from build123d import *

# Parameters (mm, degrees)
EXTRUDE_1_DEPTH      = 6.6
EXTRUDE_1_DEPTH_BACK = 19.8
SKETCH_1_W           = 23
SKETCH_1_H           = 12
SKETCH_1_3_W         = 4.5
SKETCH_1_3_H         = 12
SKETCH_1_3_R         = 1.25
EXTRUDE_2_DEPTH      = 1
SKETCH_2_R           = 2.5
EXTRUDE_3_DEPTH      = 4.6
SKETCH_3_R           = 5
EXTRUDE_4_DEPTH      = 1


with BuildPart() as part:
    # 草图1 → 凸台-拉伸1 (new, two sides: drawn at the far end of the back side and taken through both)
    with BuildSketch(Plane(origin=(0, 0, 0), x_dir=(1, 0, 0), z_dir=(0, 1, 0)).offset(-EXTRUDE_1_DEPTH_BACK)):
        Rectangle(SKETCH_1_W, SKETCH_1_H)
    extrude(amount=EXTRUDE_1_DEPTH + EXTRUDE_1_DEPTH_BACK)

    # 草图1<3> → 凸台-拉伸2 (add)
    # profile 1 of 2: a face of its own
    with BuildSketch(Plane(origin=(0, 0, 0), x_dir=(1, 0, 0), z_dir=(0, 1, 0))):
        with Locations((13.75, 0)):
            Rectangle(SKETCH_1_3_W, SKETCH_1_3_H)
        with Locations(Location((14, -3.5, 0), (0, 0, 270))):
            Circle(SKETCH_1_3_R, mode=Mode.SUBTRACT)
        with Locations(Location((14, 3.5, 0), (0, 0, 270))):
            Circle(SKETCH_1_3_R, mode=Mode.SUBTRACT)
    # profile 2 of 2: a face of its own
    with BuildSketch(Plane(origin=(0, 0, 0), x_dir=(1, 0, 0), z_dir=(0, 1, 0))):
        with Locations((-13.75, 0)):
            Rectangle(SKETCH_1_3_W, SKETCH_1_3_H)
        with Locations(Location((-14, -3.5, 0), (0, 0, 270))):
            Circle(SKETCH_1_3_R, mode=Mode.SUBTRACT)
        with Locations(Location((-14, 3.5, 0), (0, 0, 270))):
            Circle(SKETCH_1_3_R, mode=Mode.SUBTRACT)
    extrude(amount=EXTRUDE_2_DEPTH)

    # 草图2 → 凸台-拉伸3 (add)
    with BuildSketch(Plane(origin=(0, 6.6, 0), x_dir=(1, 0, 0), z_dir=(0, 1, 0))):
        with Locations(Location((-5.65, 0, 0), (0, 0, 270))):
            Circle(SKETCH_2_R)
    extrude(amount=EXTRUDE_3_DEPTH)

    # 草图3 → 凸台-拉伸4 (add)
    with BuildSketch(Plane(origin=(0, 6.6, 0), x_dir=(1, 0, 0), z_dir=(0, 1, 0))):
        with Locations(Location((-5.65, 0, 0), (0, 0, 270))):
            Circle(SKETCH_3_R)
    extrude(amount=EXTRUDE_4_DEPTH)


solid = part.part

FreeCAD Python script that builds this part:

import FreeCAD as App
import Part
import Sketcher
from FreeCAD import Vector
Q = App.Units.Quantity


def add_polygon(sketch, points):
    """Adds a closed chain of lines whose ends are joined by coincident constraints."""
    first, n = sketch.GeometryCount, len(points)
    for a, b in zip(points, points[1:] + points[:1]):
        sketch.addGeometry(Part.LineSegment(App.Vector(*a, 0), App.Vector(*b, 0)), False)
    for i in range(n):
        sketch.addConstraint(Sketcher.Constraint("Coincident", first + i, 2, first + (i + 1) % n, 1))

doc = App.newDocument("Part")
params = doc.addObject("Spreadsheet::Sheet", "Params")
for row, (alias, value) in enumerate([
    ("sketch1_width", "23 mm"),
    ("sketch1_height", "12 mm"),
    ("pad1_length", "6.6 mm"),
    ("pad1_length2", "19.8 mm"),
    ("sketch2_diameter", "2.5 mm"),
    ("sketch2_height", "12 mm"),
    ("sketch2_width", "4.5 mm"),
    ("pad2_length", "1 mm"),
    ("sketch3_diameter", "5 mm"),
    ("pad3_length", "4.6 mm"),
    ("sketch4_diameter", "10 mm"),
    ("pad4_length", "1 mm"),
], start=1):
    params.set(f"A{row}", alias)
    params.set(f"B{row}", "=" + value)
    params.setAlias(f"B{row}", alias)

body = doc.addObject("PartDesign::Body", "Body")

# Sketch on XZ plane
sketch1 = doc.addObject("Sketcher::SketchObject", "Sketch")
body.addObject(sketch1)
sketch1.AttachmentSupport = (doc.XZ_Plane, [""])
sketch1.MapMode = "FlatFace"
add_polygon(sketch1, [(-12, -6), (-12, 6), (12, 6), (12, -6)])  # lines 0-3
sketch1.addConstraint([
    Sketcher.Constraint("Vertical", 0),
    Sketcher.Constraint("Horizontal", 1),
    Sketcher.Constraint("Vertical", 2),
    Sketcher.Constraint("Horizontal", 3),
    Sketcher.Constraint("Symmetric", 0, 2, 2, 2, -1, 1),
    Sketcher.Constraint("DistanceX", 1, 1, 1, 2, Q("23 mm")),
    Sketcher.Constraint("DistanceY", 0, 1, 0, 2, Q("12 mm")),
])
sketch1.setExpression("Constraints[9]", "Params.sketch1_width")
sketch1.setExpression("Constraints[10]", "Params.sketch1_height")
pad1 = doc.addObject("PartDesign::Pad", "Pad")
body.addObject(pad1)
pad1.Profile = sketch1
pad1.Type = "TwoLengths"
pad1.setExpression("Length", "Params.pad1_length")
pad1.setExpression("Length2", "Params.pad1_length2")
pad1.Reversed = True

# Sketch on XZ plane
sketch2 = doc.addObject("Sketcher::SketchObject", "Sketch001")
body.addObject(sketch2)
sketch2.AttachmentSupport = (doc.XZ_Plane, [""])
sketch2.MapMode = "FlatFace"
add_polygon(sketch2, [(11.5, -6), (11.5, 6), (16, 6), (16, -6)])  # lines 0-3
sketch2.addGeometry(Part.Circle(Vector(14, 3.5, 0), Vector(0, 0, 1), 1.2), False)  # 4
sketch2.addGeometry(Part.Circle(Vector(14, -3.5, 0), Vector(0, 0, 1), 1.2), False)  # 5
add_polygon(sketch2, [(-16, -6), (-16, 6), (-11.5, 6), (-11.5, -6)])  # lines 6-9
sketch2.addGeometry(Part.Circle(Vector(-14, 3.5, 0), Vector(0, 0, 1), 1.2), False)  # 10
sketch2.addGeometry(Part.Circle(Vector(-14, -3.5, 0), Vector(0, 0, 1), 1.2), False)  # 11
sketch2.addConstraint([
    Sketcher.Constraint("Vertical", 0),
    Sketcher.Constraint("Horizontal", 1),
    Sketcher.Constraint("Vertical", 2),
    Sketcher.Constraint("Horizontal", 3),
    Sketcher.Constraint("Vertical", 6),
    Sketcher.Constraint("Horizontal", 7),
    Sketcher.Constraint("Vertical", 8),
    Sketcher.Constraint("Horizontal", 9),
    Sketcher.Constraint("Equal", 4, 5),
    Sketcher.Constraint("Equal", 5, 10),
    Sketcher.Constraint("Equal", 10, 11),
    Sketcher.Constraint("Symmetric", 5, 3, 10, 3, -1, 1),
    Sketcher.Constraint("Symmetric", 4, 3, 11, 3, -1, 1),
    Sketcher.Constraint("Symmetric", 2, 2, 6, 2, -1, 1),
    Sketcher.Constraint("Symmetric", 0, 2, 8, 2, -1, 1),
    Sketcher.Constraint("Symmetric", 4, 3, 10, 3, -2),
    Sketcher.Constraint("Horizontal", 1, 2, 6, 2),
    Sketcher.Constraint("Diameter", 4, Q("2.5 mm")),
    Sketcher.Constraint("DistanceY", 0, 1, 0, 2, Q("12 mm")),
    Sketcher.Constraint("DistanceX", 1, 1, 1, 2, Q("4.5 mm")),
    Sketcher.Constraint("DistanceX", -1, 1, 4, 3, Q("14 mm")),
    Sketcher.Constraint("DistanceX", -1, 1, 1, 2, Q("16 mm")),
    Sketcher.Constraint("DistanceY", 5, 3, 4, 3, Q("7 mm")),
])
sketch2.setExpression("Constraints[25]", "Params.sketch2_diameter")
sketch2.setExpression("Constraints[26]", "Params.sketch2_height")
sketch2.setExpression("Constraints[27]", "Params.sketch2_width")
pad2 = doc.addObject("PartDesign::Pad", "Pad001")
body.addObject(pad2)
pad2.Profile = sketch2
pad2.setExpression("Length", "Params.pad2_length")
pad2.Reversed = True

# Sketch on XZ plane
sketch3 = doc.addObject("Sketcher::SketchObject", "Sketch002")
body.addObject(sketch3)
sketch3.AttachmentSupport = (doc.XZ_Plane, [""])
sketch3.MapMode = "FlatFace"
sketch3.AttachmentOffset = App.Placement(Vector(0, 0, -6.6), App.Rotation())
sketch3.addGeometry(Part.Circle(Vector(-5.7, 0, 0), Vector(0, 0, 1), 2.5), False)
sketch3.addConstraint([
    Sketcher.Constraint("PointOnObject", 0, 3, -1),
    Sketcher.Constraint("Diameter", 0, Q("5 mm")),
    Sketcher.Constraint("DistanceX", 0, 3, -1, 1, Q("5.65 mm")),
])
sketch3.setExpression("Constraints[1]", "Params.sketch3_diameter")
pad3 = doc.addObject("PartDesign::Pad", "Pad002")
body.addObject(pad3)
pad3.Profile = sketch3
pad3.setExpression("Length", "Params.pad3_length")
pad3.Reversed = True

# Sketch on XZ plane
sketch4 = doc.addObject("Sketcher::SketchObject", "Sketch003")
body.addObject(sketch4)
sketch4.AttachmentSupport = (doc.XZ_Plane, [""])
sketch4.MapMode = "FlatFace"
sketch4.AttachmentOffset = App.Placement(Vector(0, 0, -6.6), App.Rotation())
sketch4.addGeometry(Part.Circle(Vector(-6, 0, 0), Vector(0, 0, 1), 5), False)
sketch4.addConstraint([
    Sketcher.Constraint("PointOnObject", 0, 3, -1),
    Sketcher.Constraint("Diameter", 0, Q("10 mm")),
    Sketcher.Constraint("DistanceX", 0, 3, -1, 1, Q("5.65 mm")),
])
sketch4.setExpression("Constraints[1]", "Params.sketch4_diameter")
pad4 = doc.addObject("PartDesign::Pad", "Pad003")
body.addObject(pad4)
pad4.Profile = sketch4
pad4.setExpression("Length", "Params.pad4_length")
pad4.Reversed = True

doc.recompute()
